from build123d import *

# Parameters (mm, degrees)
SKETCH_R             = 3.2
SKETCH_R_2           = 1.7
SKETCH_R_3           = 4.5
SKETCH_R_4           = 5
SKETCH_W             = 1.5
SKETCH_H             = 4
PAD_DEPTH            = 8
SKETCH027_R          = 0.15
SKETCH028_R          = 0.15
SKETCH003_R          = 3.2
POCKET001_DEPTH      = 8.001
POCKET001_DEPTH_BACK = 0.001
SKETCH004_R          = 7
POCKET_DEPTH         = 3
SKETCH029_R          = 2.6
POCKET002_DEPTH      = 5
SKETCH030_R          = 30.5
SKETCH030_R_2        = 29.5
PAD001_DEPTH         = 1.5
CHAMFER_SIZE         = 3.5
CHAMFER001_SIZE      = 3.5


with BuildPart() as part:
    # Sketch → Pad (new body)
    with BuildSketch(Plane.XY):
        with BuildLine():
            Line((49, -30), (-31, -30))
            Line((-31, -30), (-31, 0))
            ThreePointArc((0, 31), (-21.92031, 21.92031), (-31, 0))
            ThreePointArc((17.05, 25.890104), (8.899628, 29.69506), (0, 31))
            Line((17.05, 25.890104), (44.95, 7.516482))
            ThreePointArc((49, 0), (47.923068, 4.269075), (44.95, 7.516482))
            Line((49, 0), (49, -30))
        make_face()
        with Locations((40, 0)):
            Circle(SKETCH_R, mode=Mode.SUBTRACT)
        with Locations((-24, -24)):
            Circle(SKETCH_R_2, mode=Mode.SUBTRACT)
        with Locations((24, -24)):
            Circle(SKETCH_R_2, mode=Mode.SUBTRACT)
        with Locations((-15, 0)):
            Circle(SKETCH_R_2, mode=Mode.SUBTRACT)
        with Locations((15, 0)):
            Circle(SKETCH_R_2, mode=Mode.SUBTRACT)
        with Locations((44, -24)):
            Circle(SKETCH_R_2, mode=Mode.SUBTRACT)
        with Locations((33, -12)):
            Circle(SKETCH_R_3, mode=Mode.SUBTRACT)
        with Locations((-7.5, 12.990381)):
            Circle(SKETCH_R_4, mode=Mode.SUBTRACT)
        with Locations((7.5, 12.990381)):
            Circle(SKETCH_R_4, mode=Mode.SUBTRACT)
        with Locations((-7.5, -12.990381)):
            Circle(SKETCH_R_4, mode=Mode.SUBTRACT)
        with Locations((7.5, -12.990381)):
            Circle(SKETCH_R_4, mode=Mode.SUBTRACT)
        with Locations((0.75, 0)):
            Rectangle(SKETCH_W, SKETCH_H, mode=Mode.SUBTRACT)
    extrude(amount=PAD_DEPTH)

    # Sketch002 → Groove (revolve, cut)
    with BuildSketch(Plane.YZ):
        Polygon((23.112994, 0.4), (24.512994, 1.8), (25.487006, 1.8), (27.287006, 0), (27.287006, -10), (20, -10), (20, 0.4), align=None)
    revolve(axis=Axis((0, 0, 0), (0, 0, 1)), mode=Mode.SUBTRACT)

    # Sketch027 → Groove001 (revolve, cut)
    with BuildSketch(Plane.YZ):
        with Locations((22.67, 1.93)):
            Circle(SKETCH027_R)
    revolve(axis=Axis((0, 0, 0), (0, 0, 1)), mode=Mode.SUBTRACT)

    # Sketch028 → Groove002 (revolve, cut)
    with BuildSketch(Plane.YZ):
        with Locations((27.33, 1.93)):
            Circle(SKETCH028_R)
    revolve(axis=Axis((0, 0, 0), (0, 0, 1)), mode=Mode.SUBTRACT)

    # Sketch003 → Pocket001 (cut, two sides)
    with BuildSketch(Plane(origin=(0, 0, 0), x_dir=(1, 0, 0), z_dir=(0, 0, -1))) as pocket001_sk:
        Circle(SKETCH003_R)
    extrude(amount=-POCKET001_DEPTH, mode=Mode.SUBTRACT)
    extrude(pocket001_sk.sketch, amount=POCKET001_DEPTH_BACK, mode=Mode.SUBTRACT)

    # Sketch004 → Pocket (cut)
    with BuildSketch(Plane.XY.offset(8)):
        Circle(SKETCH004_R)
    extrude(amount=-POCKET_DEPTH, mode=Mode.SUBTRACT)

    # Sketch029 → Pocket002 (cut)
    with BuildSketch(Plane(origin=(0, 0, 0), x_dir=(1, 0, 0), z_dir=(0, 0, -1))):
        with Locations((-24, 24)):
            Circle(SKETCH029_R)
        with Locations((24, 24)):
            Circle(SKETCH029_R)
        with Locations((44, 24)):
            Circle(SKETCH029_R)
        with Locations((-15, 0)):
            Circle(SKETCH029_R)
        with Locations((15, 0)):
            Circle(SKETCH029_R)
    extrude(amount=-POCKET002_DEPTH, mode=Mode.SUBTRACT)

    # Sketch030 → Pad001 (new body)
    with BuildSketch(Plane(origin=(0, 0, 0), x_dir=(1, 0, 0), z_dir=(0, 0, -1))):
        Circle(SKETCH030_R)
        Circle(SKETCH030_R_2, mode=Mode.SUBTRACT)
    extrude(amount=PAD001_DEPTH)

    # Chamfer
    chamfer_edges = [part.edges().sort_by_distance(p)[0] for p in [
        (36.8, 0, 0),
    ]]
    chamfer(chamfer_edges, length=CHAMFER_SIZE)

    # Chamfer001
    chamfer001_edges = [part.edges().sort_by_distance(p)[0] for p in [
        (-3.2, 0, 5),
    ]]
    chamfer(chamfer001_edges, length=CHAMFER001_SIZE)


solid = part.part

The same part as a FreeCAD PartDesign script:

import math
import FreeCAD as App
import Part
import Sketcher
from FreeCAD import Vector
Q = App.Units.Quantity


def edges_at(feature, points):
    """Names of the edges that pass closest to the given points."""
    edges = feature.Shape.Edges
    near = lambda p: min(range(len(edges)), key=lambda i: edges[i].distToShape(Part.Vertex(*p))[0])
    return sorted({f"Edge{near(p) + 1}" for p in points})


def add_polygon(sketch, points):
    """Adds a closed chain of lines whose ends are joined by coincident constraints."""
    first, n = sketch.GeometryCount, len(points)
    for a, b in zip(points, points[1:] + points[:1]):
        sketch.addGeometry(Part.LineSegment(App.Vector(*a, 0), App.Vector(*b, 0)), False)
    for i in range(n):
        sketch.addConstraint(Sketcher.Constraint("Coincident", first + i, 2, first + (i + 1) % n, 1))

doc = App.newDocument("Part")
body = doc.addObject("PartDesign::Body", "Body")

sketch1 = body.newObject("Sketcher::SketchObject", "Sketch")
sketch1.AttachmentSupport = (doc.getObject("XY_Plane"), [""])
sketch1.MapMode = "FlatFace"
sketch1.addGeometry(Part.LineSegment(Vector(-31, -30, 0), Vector(49, -30, 0)), False)
sketch1.addGeometry(Part.LineSegment(Vector(49, -30, 0), Vector(49, 0, 0)), False)
sketch1.addGeometry(Part.ArcOfCircle(Part.Circle(Vector(40.000003, 0.000002, 0), Vector(0, 0, 1), 8.999997), math.radians(-0.00001), math.radians(56.632997)), False)
sketch1.addGeometry(Part.LineSegment(Vector(44.95, 7.516482, 0), Vector(17.05, 25.890104, 0)), False)
sketch1.addGeometry(Part.ArcOfCircle(Part.Circle(Vector(-0.000003, -0.000009, 0), Vector(0, 0, 1), 31.000009), math.radians(56.632991), math.radians(89.999994)), False)
sketch1.addGeometry(Part.ArcOfCircle(Part.Circle(Vector(0.000001, -0.000001, 0), Vector(0, 0, 1), 31.000001), math.radians(90.000001), math.radians(179.999999)), False)
sketch1.addGeometry(Part.LineSegment(Vector(-31, 0, 0), Vector(-31, -30, 0)), False)
sketch1.addGeometry(Part.Circle(Vector(44, -24, 0), Vector(0, 0, 1), 1.7), False)
sketch1.addGeometry(Part.Circle(Vector(24, -24, 0), Vector(0, 0, 1), 1.7), False)
sketch1.addGeometry(Part.Circle(Vector(33, -12, 0), Vector(0, 0, 1), 4.5), False)
sketch1.addGeometry(Part.Circle(Vector(-24, -24, 0), Vector(0, 0, 1), 1.7), False)
sketch1.addGeometry(Part.Circle(Vector(7.5, -12.990381, 0), Vector(0, 0, 1), 5), False)
sketch1.addGeometry(Part.Circle(Vector(-7.5, -12.990381, 0), Vector(0, 0, 1), 5), False)
sketch1.addGeometry(Part.Circle(Vector(40, 0, 0), Vector(0, 0, 1), 3.2), False)
sketch1.addGeometry(Part.Circle(Vector(15, 0, 0), Vector(0, 0, 1), 1.7), False)
add_polygon(sketch1, [(0, -2), (0, 2), (1.5, 2), (1.5, -2)])
sketch1.addGeometry(Part.Circle(Vector(-15, 0, 0), Vector(0, 0, 1), 1.7), False)
sketch1.addGeometry(Part.Circle(Vector(7.5, 12.990381, 0), Vector(0, 0, 1), 5), False)
sketch1.addGeometry(Part.Circle(Vector(-7.5, 12.990381, 0), Vector(0, 0, 1), 5), False)
sketch1.addConstraint(Sketcher.Constraint("Coincident", 0, 2, 1, 1))
sketch1.addConstraint(Sketcher.Constraint("Tangent", 1, 2, 2, 1))
sketch1.addConstraint(Sketcher.Constraint("Tangent", 2, 2, 3, 1))
sketch1.addConstraint(Sketcher.Constraint("Tangent", 3, 2, 4, 1))
sketch1.addConstraint(Sketcher.Constraint("Tangent", 4, 2, 5, 1))
sketch1.addConstraint(Sketcher.Constraint("Tangent", 5, 2, 6, 1))
sketch1.addConstraint(Sketcher.Constraint("Coincident", 6, 2, 0, 1))
sketch1.addConstraint(Sketcher.Constraint("Horizontal", 0))
sketch1.addConstraint(Sketcher.Constraint("Vertical", 1))
sketch1.addConstraint(Sketcher.Constraint("Vertical", 6))
sketch1.addConstraint(Sketcher.Constraint("Vertical", 15))
sketch1.addConstraint(Sketcher.Constraint("Horizontal", 16))
sketch1.addConstraint(Sketcher.Constraint("Vertical", 17))
sketch1.addConstraint(Sketcher.Constraint("Horizontal", 18))
sketch1.addConstraint(Sketcher.Constraint("Coincident", 4, 3, -1, 1))
sketch1.addConstraint(Sketcher.Constraint("Coincident", 13, 3, 2, 3))
sketch1.addConstraint(Sketcher.Constraint("Equal", 7, 8))
sketch1.addConstraint(Sketcher.Constraint("Equal", 8, 10))
sketch1.addConstraint(Sketcher.Constraint("Equal", 11, 12))
sketch1.addConstraint(Sketcher.Constraint("Equal", 10, 14))
sketch1.addConstraint(Sketcher.Constraint("Equal", 14, 19))
sketch1.addConstraint(Sketcher.Constraint("Equal", 12, 20))
sketch1.addConstraint(Sketcher.Constraint("Equal", 20, 21))
sketch1.addConstraint(Sketcher.Constraint("Symmetric", 14, 3, 19, 3, -1, 1))
sketch1.addConstraint(Sketcher.Constraint("Symmetric", 12, 3, 20, 3, -1, 1))
sketch1.addConstraint(Sketcher.Constraint("Symmetric", 11, 3, 21, 3, -1, 1))
sketch1.addConstraint(Sketcher.Constraint("Symmetric", 15, 2, 18, 2, -1, 1))
sketch1.addConstraint(Sketcher.Constraint("Symmetric", 8, 3, 10, 3, -2))
sketch1.addConstraint(Sketcher.Constraint("Symmetric", 11, 3, 12, 3, -2))
sketch1.addConstraint(Sketcher.Constraint("PointOnObject", 2, 3, -1))
sketch1.addConstraint(Sketcher.Constraint("PointOnObject", 14, 3, -1))
sketch1.addConstraint(Sketcher.Constraint("PointOnObject", 4, 2, -2))
sketch1.addConstraint(Sketcher.Constraint("PointOnObject", 5, 2, -1))
sketch1.addConstraint(Sketcher.Constraint("Horizontal", 7, 3, 8, 3))
sketch1.addConstraint(Sketcher.Constraint("Diameter", 9, Q("9 mm")))
sketch1.addConstraint(Sketcher.Constraint("Diameter", 11, Q("10 mm")))
sketch1.addConstraint(Sketcher.Constraint("Radius", 5, Q("31.000001 mm")))
sketch1.addConstraint(Sketcher.Constraint("Diameter", 7, Q("3.4 mm")))
sketch1.addConstraint(Sketcher.Constraint("Diameter", 13, Q("6.4 mm")))
sketch1.addConstraint(Sketcher.Constraint("DistanceX", 0, 1, 0, 2, Q("80 mm")))
sketch1.addConstraint(Sketcher.Constraint("DistanceY", 1, 1, 1, 2, Q("30 mm")))
sketch1.addConstraint(Sketcher.Constraint("DistanceY", 15, 1, 15, 2, Q("4 mm")))
sketch1.addConstraint(Sketcher.Constraint("DistanceX", 16, 1, 16, 2, Q("1.5 mm")))
sketch1.addConstraint(Sketcher.Constraint("DistanceX", -1, 1, 7, 3, Q("44 mm")))
sketch1.addConstraint(Sketcher.Constraint("DistanceY", 7, 3, -1, 1, Q("24 mm")))
sketch1.addConstraint(Sketcher.Constraint("DistanceX", -1, 1, 8, 3, Q("24 mm")))
sketch1.addConstraint(Sketcher.Constraint("DistanceX", -1, 1, 9, 3, Q("33 mm")))
sketch1.addConstraint(Sketcher.Constraint("DistanceY", 9, 3, -1, 1, Q("12 mm")))
sketch1.addConstraint(Sketcher.Constraint("DistanceX", -1, 1, 13, 3, Q("40 mm")))
sketch1.addConstraint(Sketcher.Constraint("DistanceX", -1, 1, 14, 3, Q("15 mm")))
sketch1.addConstraint(Sketcher.Constraint("DistanceX", 12, 3, 11, 3, Q("15 mm")))
sketch1.addConstraint(Sketcher.Constraint("DistanceY", 11, 3, -1, 1, Q("12.990381 mm")))
pad1 = body.newObject("PartDesign::Pad", "Pad")
pad1.Profile = sketch1
pad1.Length = 8

sketch2 = body.newObject("Sketcher::SketchObject", "Sketch001")
sketch2.AttachmentSupport = (doc.getObject("YZ_Plane"), [""])
sketch2.MapMode = "FlatFace"
add_polygon(sketch2, [(24.512994, 1.8), (23.112994, 0.4), (20, 0.4), (20, -10), (27.287006, -10), (27.287006, 0), (25.487006, 1.8)])
sketch2.addConstraint(Sketcher.Constraint("Horizontal", 1))
sketch2.addConstraint(Sketcher.Constraint("Vertical", 2))
sketch2.addConstraint(Sketcher.Constraint("Horizontal", 3))
sketch2.addConstraint(Sketcher.Constraint("Vertical", 4))
sketch2.addConstraint(Sketcher.Constraint("Horizontal", 6))
sketch2.addConstraint(Sketcher.Constraint("PointOnObject", 4, 2, -1))
sketch2.addConstraint(Sketcher.Constraint("Perpendicular", 0, 5))
sketch2.addConstraint(Sketcher.Constraint("DistanceY", 4, 1, 4, 2, Q("10 mm")))
sketch2.addConstraint(Sketcher.Constraint("Angle", 0, Q("-135 deg")))
sketch2.addConstraint(Sketcher.Constraint("DistanceY", 2, 2, 2, 1, Q("10.4 mm")))
sketch2.addConstraint(Sketcher.Constraint("DistanceX", -1, 1, 1, 2, Q("20 mm")))
sketch2.addConstraint(Sketcher.Constraint("DistanceY", -1, 1, 5, 2, Q("1.8 mm")))
sketch2.addConstraint(Sketcher.Constraint("DistanceX", 1, 2, 1, 1, Q("3.112994 mm")))
sketch2.addConstraint(Sketcher.Constraint("DistanceX", 3, 1, 3, 2, Q("7.287006 mm")))
groove = body.newObject("PartDesign::Groove", "Groove")
groove.Profile = sketch2
groove.ReferenceAxis = (sketch2, ["V_Axis"])
groove.Angle = 360

sketch3 = body.newObject("Sketcher::SketchObject", "Sketch002")
sketch3.AttachmentSupport = (doc.getObject("YZ_Plane"), [""])
sketch3.MapMode = "FlatFace"
sketch3.addGeometry(Part.Circle(Vector(22.67, 1.93, 0), Vector(0, 0, 1), 0.15), False)
sketch3.addConstraint(Sketcher.Constraint("Diameter", 0, Q("0.3 mm")))
sketch3.addConstraint(Sketcher.Constraint("DistanceX", -1, 1, 0, 3, Q("22.67 mm")))
sketch3.addConstraint(Sketcher.Constraint("DistanceY", -1, 1, 0, 3, Q("1.93 mm")))
groove2 = body.newObject("PartDesign::Groove", "Groove001")
groove2.Profile = sketch3
groove2.ReferenceAxis = (sketch3, ["V_Axis"])
groove2.Angle = 360

sketch4 = body.newObject("Sketcher::SketchObject", "Sketch003")
sketch4.AttachmentSupport = (doc.getObject("YZ_Plane"), [""])
sketch4.MapMode = "FlatFace"
sketch4.addGeometry(Part.Circle(Vector(27.33, 1.93, 0), Vector(0, 0, 1), 0.15), False)
sketch4.addConstraint(Sketcher.Constraint("Diameter", 0, Q("0.3 mm")))
sketch4.addConstraint(Sketcher.Constraint("DistanceX", -1, 1, 0, 3, Q("27.33 mm")))
sketch4.addConstraint(Sketcher.Constraint("DistanceY", -1, 1, 0, 3, Q("1.93 mm")))
groove3 = body.newObject("PartDesign::Groove", "Groove002")
groove3.Profile = sketch4
groove3.ReferenceAxis = (sketch4, ["V_Axis"])
groove3.Angle = 360

sketch5 = body.newObject("Sketcher::SketchObject", "Sketch004")
sketch5.AttachmentSupport = (doc.getObject("XY_Plane"), [""])
sketch5.MapMode = "FlatFace"
sketch5.addGeometry(Part.Circle(Vector(0, 0, 0), Vector(0, 0, 1), 3.2), False)
sketch5.addConstraint(Sketcher.Constraint("Coincident", 0, 3, -1, 1))
sketch5.addConstraint(Sketcher.Constraint("Diameter", 0, Q("6.4 mm")))
pocket1 = body.newObject("PartDesign::Pocket", "Pocket")
pocket1.Profile = sketch5
pocket1.Type = "ThroughAll"
pocket1.Midplane = True

sketch6 = body.newObject("Sketcher::SketchObject", "Sketch005")
sketch6.AttachmentSupport = (doc.getObject("XY_Plane"), [""])
sketch6.MapMode = "FlatFace"
sketch6.AttachmentOffset = App.Placement(Vector(0, 0, 8), App.Rotation())
sketch6.addGeometry(Part.Circle(Vector(0, 0, 0), Vector(0, 0, 1), 7), False)
sketch6.addConstraint(Sketcher.Constraint("Coincident", 0, 3, -1, 1))
sketch6.addConstraint(Sketcher.Constraint("Diameter", 0, Q("14 mm")))
pocket2 = body.newObject("PartDesign::Pocket", "Pocket001")
pocket2.Profile = sketch6
pocket2.Length = 3

sketch7 = body.newObject("Sketcher::SketchObject", "Sketch006")
sketch7.AttachmentSupport = (doc.getObject("XY_Plane"), [""])
sketch7.MapMode = "FlatFace"
sketch7.addGeometry(Part.Circle(Vector(-24, -24, 0), Vector(0, 0, 1), 2.6), False)
sketch7.addGeometry(Part.Circle(Vector(24, -24, 0), Vector(0, 0, 1), 2.6), False)
sketch7.addGeometry(Part.Circle(Vector(44, -24, 0), Vector(0, 0, 1), 2.6), False)
sketch7.addGeometry(Part.Circle(Vector(-15, 0, 0), Vector(0, 0, 1), 2.6), False)
sketch7.addGeometry(Part.Circle(Vector(15, 0, 0), Vector(0, 0, 1), 2.6), False)
sketch7.addConstraint(Sketcher.Constraint("Equal", 0, 1))
sketch7.addConstraint(Sketcher.Constraint("Equal", 1, 2))
sketch7.addConstraint(Sketcher.Constraint("Equal", 2, 3))
sketch7.addConstraint(Sketcher.Constraint("Equal", 3, 4))
sketch7.addConstraint(Sketcher.Constraint("Symmetric", 3, 3, 4, 3, -1, 1))
sketch7.addConstraint(Sketcher.Constraint("Symmetric", 0, 3, 1, 3, -2))
sketch7.addConstraint(Sketcher.Constraint("PointOnObject", 3, 3, -1))
sketch7.addConstraint(Sketcher.Constraint("Horizontal", 1, 3, 2, 3))
sketch7.addConstraint(Sketcher.Constraint("Diameter", 0, Q("5.2 mm")))
sketch7.addConstraint(Sketcher.Constraint("DistanceX", 0, 3, -1, 1, Q("24 mm")))
sketch7.addConstraint(Sketcher.Constraint("DistanceY", 0, 3, -1, 1, Q("24 mm")))
sketch7.addConstraint(Sketcher.Constraint("DistanceX", -1, 1, 2, 3, Q("44 mm")))
sketch7.addConstraint(Sketcher.Constraint("DistanceX", 3, 3, -1, 1, Q("15 mm")))
pocket3 = body.newObject("PartDesign::Pocket", "Pocket002")
pocket3.Profile = sketch7
pocket3.Length = 5
pocket3.Reversed = True

sketch8 = body.newObject("Sketcher::SketchObject", "Sketch007")
sketch8.AttachmentSupport = (doc.getObject("XY_Plane"), [""])
sketch8.MapMode = "FlatFace"
sketch8.addGeometry(Part.Circle(Vector(0, 0, 0), Vector(0, 0, 1), 30.5), False)
sketch8.addGeometry(Part.Circle(Vector(0, 0, 0), Vector(0, 0, 1), 29.5), False)
sketch8.addConstraint(Sketcher.Constraint("Coincident", 0, 3, -1, 1))
sketch8.addConstraint(Sketcher.Constraint("Coincident", 1, 3, -1, 1))
sketch8.addConstraint(Sketcher.Constraint("Diameter", 0, Q("61 mm")))
sketch8.addConstraint(Sketcher.Constraint("Diameter", 1, Q("59 mm")))
pad2 = body.newObject("PartDesign::Pad", "Pad001")
pad2.Profile = sketch8
pad2.Length = 1.5
pad2.Reversed = True
doc.recompute()

chamfer = body.newObject("PartDesign::Chamfer", "Chamfer")
chamfer.Base = (pad2, edges_at(pad2, [(36.8, 0, 0)]))
chamfer.Size = 3.5
doc.recompute()

chamfer2 = body.newObject("PartDesign::Chamfer", "Chamfer001")
chamfer2.Base = (chamfer, edges_at(chamfer, [(-3.2, 0, 5)]))
chamfer2.Size = 3.5

doc.recompute()
